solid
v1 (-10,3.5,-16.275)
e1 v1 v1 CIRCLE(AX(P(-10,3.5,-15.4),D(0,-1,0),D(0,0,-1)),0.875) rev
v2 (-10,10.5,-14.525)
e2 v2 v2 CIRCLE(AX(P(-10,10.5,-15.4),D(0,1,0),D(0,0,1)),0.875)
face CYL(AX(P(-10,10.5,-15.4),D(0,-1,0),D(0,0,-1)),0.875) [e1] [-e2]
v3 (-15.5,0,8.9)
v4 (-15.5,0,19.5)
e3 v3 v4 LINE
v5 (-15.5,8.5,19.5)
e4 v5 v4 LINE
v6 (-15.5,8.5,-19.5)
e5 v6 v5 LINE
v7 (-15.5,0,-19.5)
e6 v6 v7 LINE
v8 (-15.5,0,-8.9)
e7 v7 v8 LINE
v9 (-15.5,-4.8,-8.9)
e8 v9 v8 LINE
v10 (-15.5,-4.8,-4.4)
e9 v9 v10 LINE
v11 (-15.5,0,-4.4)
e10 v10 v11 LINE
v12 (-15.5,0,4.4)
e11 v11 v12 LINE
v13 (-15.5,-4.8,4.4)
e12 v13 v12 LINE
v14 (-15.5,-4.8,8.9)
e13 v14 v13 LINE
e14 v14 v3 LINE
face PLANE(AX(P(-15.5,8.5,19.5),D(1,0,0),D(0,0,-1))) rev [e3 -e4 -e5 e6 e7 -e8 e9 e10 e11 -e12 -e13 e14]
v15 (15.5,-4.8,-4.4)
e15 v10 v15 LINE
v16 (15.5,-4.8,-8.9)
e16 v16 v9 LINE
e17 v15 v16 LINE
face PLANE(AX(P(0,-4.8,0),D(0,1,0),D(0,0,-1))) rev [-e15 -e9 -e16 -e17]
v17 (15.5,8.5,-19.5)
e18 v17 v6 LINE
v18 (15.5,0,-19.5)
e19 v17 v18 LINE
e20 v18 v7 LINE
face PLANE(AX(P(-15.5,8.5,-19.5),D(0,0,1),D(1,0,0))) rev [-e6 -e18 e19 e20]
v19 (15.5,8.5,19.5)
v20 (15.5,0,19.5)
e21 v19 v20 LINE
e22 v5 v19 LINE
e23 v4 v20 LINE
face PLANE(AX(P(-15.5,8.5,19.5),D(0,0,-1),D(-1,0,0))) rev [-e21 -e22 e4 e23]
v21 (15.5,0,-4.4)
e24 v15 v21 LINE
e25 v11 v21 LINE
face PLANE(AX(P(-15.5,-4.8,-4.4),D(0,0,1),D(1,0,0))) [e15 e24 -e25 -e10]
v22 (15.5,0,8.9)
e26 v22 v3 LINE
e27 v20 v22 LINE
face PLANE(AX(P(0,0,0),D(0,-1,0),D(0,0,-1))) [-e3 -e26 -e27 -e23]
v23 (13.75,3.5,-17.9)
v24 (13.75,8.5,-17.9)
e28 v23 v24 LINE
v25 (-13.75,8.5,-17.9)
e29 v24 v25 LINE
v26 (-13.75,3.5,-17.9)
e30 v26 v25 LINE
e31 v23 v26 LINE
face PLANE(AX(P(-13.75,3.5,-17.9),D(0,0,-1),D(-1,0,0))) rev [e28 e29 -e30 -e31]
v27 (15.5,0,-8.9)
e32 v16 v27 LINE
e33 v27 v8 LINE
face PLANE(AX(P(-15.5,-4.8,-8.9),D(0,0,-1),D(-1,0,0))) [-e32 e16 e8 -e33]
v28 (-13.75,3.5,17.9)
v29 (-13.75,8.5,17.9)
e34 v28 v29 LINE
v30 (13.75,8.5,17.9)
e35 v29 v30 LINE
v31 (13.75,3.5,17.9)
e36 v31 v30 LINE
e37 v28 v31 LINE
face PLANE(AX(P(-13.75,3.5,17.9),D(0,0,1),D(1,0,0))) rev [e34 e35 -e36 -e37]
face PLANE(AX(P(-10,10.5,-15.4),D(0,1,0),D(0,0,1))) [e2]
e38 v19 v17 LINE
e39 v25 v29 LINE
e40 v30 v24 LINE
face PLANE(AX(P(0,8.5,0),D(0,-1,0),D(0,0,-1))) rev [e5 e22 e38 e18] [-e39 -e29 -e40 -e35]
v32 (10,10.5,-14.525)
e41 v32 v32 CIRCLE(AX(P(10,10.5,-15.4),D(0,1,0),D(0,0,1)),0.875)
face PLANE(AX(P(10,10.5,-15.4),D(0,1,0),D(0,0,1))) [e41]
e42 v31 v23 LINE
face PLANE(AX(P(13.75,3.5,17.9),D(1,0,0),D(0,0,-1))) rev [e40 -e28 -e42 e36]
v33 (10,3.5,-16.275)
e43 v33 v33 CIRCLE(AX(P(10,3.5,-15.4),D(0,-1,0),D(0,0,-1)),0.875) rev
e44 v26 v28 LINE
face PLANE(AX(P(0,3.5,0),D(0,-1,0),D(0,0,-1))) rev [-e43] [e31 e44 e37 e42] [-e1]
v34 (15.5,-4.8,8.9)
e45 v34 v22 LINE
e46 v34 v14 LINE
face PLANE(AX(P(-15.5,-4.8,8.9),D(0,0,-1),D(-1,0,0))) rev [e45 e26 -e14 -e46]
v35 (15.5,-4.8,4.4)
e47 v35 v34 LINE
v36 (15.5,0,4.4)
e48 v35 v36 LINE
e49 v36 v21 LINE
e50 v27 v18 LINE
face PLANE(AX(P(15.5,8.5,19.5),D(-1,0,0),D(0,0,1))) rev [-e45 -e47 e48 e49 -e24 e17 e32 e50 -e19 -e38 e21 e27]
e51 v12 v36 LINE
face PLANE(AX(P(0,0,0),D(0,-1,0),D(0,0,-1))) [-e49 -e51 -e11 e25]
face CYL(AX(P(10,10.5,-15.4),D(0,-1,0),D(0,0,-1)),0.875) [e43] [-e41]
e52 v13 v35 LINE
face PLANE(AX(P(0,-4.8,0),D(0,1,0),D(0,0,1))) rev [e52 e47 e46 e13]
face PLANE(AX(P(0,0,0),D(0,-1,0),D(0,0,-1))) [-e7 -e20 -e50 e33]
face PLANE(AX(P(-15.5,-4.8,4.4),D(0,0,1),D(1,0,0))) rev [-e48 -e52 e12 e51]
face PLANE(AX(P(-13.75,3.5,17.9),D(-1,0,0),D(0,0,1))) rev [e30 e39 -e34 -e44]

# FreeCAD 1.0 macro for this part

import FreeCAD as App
import Part
import Sketcher


def add_polygon(sketch, points):
    """Adds a closed chain of lines whose ends are joined by coincident constraints."""
    first, n = sketch.GeometryCount, len(points)
    for a, b in zip(points, points[1:] + points[:1]):
        sketch.addGeometry(Part.LineSegment(App.Vector(*a, 0), App.Vector(*b, 0)), False)
    for i in range(n):
        sketch.addConstraint(Sketcher.Constraint("Coincident", first + i, 2, first + (i + 1) % n, 1))

doc = App.newDocument("Part")
body = doc.addObject("PartDesign::Body", "Body")

# Sketch on XZ plane
sketch1 = body.newObject("Sketcher::SketchObject", "Sketch")
sketch1.AttachmentSupport = (doc.getObject("XZ_Plane"), [""])
sketch1.MapMode = "FlatFace"
add_polygon(sketch1, [(-15.5, -19.5), (-15.5, 19.5), (15.5, 19.5), (15.5, -19.5)])  # lines 0-3
sketch1.addConstraint([
    Sketcher.Constraint("Vertical", 0),
    Sketcher.Constraint("Horizontal", 1),
    Sketcher.Constraint("Vertical", 2),
    Sketcher.Constraint("Horizontal", 3),
    Sketcher.Constraint("Symmetric", 0, 2, 2, 2, -1, 1),
    Sketcher.Constraint("DistanceX", 1, 1, 1, 2, 31.0),
    Sketcher.Constraint("DistanceY", 0, 1, 0, 2, 39.0),
])
pad1 = body.newObject("PartDesign::Pad", "Pad")
pad1.Profile = sketch1
pad1.Length = 8.5
pad1.Reversed = True

# Sketch on XZ plane
sketch2 = body.newObject("Sketcher::SketchObject", "Sketch001")
sketch2.AttachmentSupport = (doc.getObject("XZ_Plane"), [""])
sketch2.MapMode = "FlatFace"
add_polygon(sketch2, [(-15.5, 8.9), (-15.5, 4.4), (15.5, 4.4), (15.5, 8.9)])  # lines 0-3
sketch2.addConstraint([
    Sketcher.Constraint("Vertical", 0),
    Sketcher.Constraint("Horizontal", 1),
    Sketcher.Constraint("Vertical", 2),
    Sketcher.Constraint("Horizontal", 3),
    Sketcher.Constraint("DistanceX", 1, 1, 1, 2, 31.0),
    Sketcher.Constraint("DistanceY", 0, 2, 0, 1, 4.5),
    Sketcher.Constraint("DistanceX", 0, 2, -1, 1, 15.5),
    Sketcher.Constraint("DistanceY", -1, 1, 0, 2, 4.4),
])
pad2 = body.newObject("PartDesign::Pad", "Pad001")
pad2.Profile = sketch2
pad2.Length = 4.8
doc.recompute()

mirrored = body.newObject("PartDesign::Mirrored", "Mirrored")
mirrored.Originals = [pad2]
mirrored.MirrorPlane = (doc.getObject("XY_Plane"), [""])
body.Tip = mirrored

# Sketch on XZ plane
sketch3 = body.newObject("Sketcher::SketchObject", "Sketch002")
sketch3.AttachmentSupport = (doc.getObject("XZ_Plane"), [""])
sketch3.MapMode = "FlatFace"
sketch3.AttachmentOffset = App.Placement(App.Vector(0, 0, -8.5), App.Rotation())
add_polygon(sketch3, [(-13.75, -17.9), (-13.75, 17.9), (13.75, 17.9), (13.75, -17.9)])  # lines 0-3
sketch3.addConstraint([
    Sketcher.Constraint("Vertical", 0),
    Sketcher.Constraint("Horizontal", 1),
    Sketcher.Constraint("Vertical", 2),
    Sketcher.Constraint("Horizontal", 3),
    Sketcher.Constraint("Symmetric", 0, 2, 2, 2, -1, 1),
    Sketcher.Constraint("DistanceX", 1, 1, 1, 2, 27.5),
    Sketcher.Constraint("DistanceY", 0, 1, 0, 2, 35.8),
])
pocket1 = body.newObject("PartDesign::Pocket", "Pocket")
pocket1.Profile = sketch3
pocket1.Length = 5
pocket1.Reversed = True

# Sketch on XZ plane
sketch4 = body.newObject("Sketcher::SketchObject", "Sketch003")
sketch4.AttachmentSupport = (doc.getObject("XZ_Plane"), [""])
sketch4.MapMode = "FlatFace"
sketch4.AttachmentOffset = App.Placement(App.Vector(0, 0, -3.5), App.Rotation())
sketch4.addGeometry([
    Part.Circle(App.Vector(-10, -15.4, 0), App.Vector(0, 0, 1), 0.875),
    Part.Circle(App.Vector(10, -15.4, 0), App.Vector(0, 0, 1), 0.875),
], False)
sketch4.addConstraint([
    Sketcher.Constraint("Equal", 0, 1),
    Sketcher.Constraint("Symmetric", 0, 3, 1, 3, -2),
    Sketcher.Constraint("Diameter", 0, 1.75),
    Sketcher.Constraint("DistanceX", 0, 3, -1, 1, 10.0),
    Sketcher.Constraint("DistanceY", 0, 3, -1, 1, 15.4),
])
pad3 = body.newObject("PartDesign::Pad", "Pad002")
pad3.Profile = sketch4
pad3.Length = 7
pad3.Reversed = True

doc.recompute()
